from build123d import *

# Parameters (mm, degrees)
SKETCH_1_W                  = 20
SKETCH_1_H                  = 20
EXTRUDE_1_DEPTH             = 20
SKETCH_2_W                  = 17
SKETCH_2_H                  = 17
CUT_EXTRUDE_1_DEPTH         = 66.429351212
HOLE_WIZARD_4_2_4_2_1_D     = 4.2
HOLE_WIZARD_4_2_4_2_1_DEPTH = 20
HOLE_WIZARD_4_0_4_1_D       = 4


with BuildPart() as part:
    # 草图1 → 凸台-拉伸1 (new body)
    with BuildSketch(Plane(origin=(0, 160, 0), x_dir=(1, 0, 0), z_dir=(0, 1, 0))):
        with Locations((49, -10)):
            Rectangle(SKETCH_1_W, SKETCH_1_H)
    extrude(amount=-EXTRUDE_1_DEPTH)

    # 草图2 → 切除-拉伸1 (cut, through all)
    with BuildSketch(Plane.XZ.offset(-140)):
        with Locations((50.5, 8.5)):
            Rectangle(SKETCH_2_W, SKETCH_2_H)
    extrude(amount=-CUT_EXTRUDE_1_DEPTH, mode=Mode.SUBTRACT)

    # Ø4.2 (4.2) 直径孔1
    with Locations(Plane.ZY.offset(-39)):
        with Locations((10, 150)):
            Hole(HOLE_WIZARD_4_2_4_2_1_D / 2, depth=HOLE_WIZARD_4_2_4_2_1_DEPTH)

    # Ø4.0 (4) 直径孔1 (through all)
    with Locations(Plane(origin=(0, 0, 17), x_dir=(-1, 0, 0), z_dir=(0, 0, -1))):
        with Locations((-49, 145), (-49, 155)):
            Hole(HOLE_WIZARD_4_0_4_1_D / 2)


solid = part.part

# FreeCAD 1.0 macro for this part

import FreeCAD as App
import Part
import Sketcher
from FreeCAD import Vector

doc = App.newDocument("Part")
body = doc.addObject("PartDesign::Body", "Body")

# Sketch on XZ plane
sketch1 = body.newObject("Sketcher::SketchObject", "Sketch")
sketch1.AttachmentSupport = (doc.getObject("XZ_Plane"), [""])
sketch1.MapMode = "FlatFace"
sketch1.AttachmentOffset = App.Placement(Vector(0, 0, -160), App.Rotation())
sketch1.addGeometry([
    Part.LineSegment(Vector(39, 0, 0), Vector(39, 20, 0)),
    Part.LineSegment(Vector(39, 20, 0), Vector(59, 20, 0)),
    Part.LineSegment(Vector(59, 20, 0), Vector(59, 0, 0)),
    Part.LineSegment(Vector(59, 0, 0), Vector(39, 0, 0)),
], False)
sketch1.addConstraint([
    Sketcher.Constraint("Coincident", 0, 2, 1, 1),
    Sketcher.Constraint("Coincident", 1, 2, 2, 1),
    Sketcher.Constraint("Coincident", 2, 2, 3, 1),
    Sketcher.Constraint("Coincident", 3, 2, 0, 1),
    Sketcher.Constraint("Vertical", 0),
    Sketcher.Constraint("Horizontal", 1),
    Sketcher.Constraint("Vertical", 2),
    Sketcher.Constraint("Horizontal", 3),
    Sketcher.Constraint("PointOnObject", 2, 2, -1),
    Sketcher.Constraint("Equal", 3, 0),
    Sketcher.Constraint("DistanceX", 1, 1, 1, 2, 20.0),
    Sketcher.Constraint("DistanceX", -1, 1, 0, 2, 39.0),
])
pad1 = body.newObject("PartDesign::Pad", "Pad")
pad1.Profile = sketch1
pad1.Length = 20

# Sketch on XZ plane
sketch2 = body.newObject("Sketcher::SketchObject", "Sketch001")
sketch2.AttachmentSupport = (doc.getObject("XZ_Plane"), [""])
sketch2.MapMode = "FlatFace"
sketch2.AttachmentOffset = App.Placement(Vector(0, 0, -140), App.Rotation())
sketch2.addGeometry([
    Part.LineSegment(Vector(42, 17, 0), Vector(42, 0, 0)),
    Part.LineSegment(Vector(42, 0, 0), Vector(59, 0, 0)),
    Part.LineSegment(Vector(59, 0, 0), Vector(59, 17, 0)),
    Part.LineSegment(Vector(59, 17, 0), Vector(42, 17, 0)),
], False)
sketch2.addConstraint([
    Sketcher.Constraint("Coincident", 0, 2, 1, 1),
    Sketcher.Constraint("Coincident", 1, 2, 2, 1),
    Sketcher.Constraint("Coincident", 2, 2, 3, 1),
    Sketcher.Constraint("Coincident", 3, 2, 0, 1),
    Sketcher.Constraint("Vertical", 0),
    Sketcher.Constraint("Horizontal", 1),
    Sketcher.Constraint("Vertical", 2),
    Sketcher.Constraint("Horizontal", 3),
    Sketcher.Constraint("PointOnObject", 0, 2, -1),
    Sketcher.Constraint("Equal", 3, 0),
    Sketcher.Constraint("DistanceX", 1, 1, 1, 2, 17.0),
    Sketcher.Constraint("DistanceX", -1, 1, 0, 2, 42.0),
])
pocket1 = body.newObject("PartDesign::Pocket", "Pocket")
pocket1.Profile = sketch2
pocket1.Type = "ThroughAll"

# Sketch on YZ plane
sketch3 = body.newObject("Sketcher::SketchObject", "Sketch002")
sketch3.AttachmentSupport = (doc.getObject("YZ_Plane"), [""])
sketch3.MapMode = "FlatFace"
sketch3.AttachmentOffset = App.Placement(Vector(0, 0, 39), App.Rotation())
sketch3.addGeometry(Part.Circle(Vector(150, 10, 0), Vector(0, 0, 1), 2.1), False)
sketch3.addConstraint([
    Sketcher.Constraint("Diameter", 0, 4.2),
    Sketcher.Constraint("DistanceX", -1, 1, 0, 3, 150.0),
    Sketcher.Constraint("DistanceY", -1, 1, 0, 3, 10.0),
])
doc.recompute()
hole = body.newObject("PartDesign::Hole", "Hole")
hole.Profile = sketch3
hole.ThreadType = "None"
hole.Diameter = 4.2
hole.DepthType = "Dimension"
hole.Depth = 20
hole.DrillPoint = "Flat"
hole.Reversed = True

# Sketch on XY plane
sketch4 = body.newObject("Sketcher::SketchObject", "Sketch003")
sketch4.AttachmentSupport = (doc.getObject("XY_Plane"), [""])
sketch4.MapMode = "FlatFace"
sketch4.AttachmentOffset = App.Placement(Vector(0, 0, 17), App.Rotation())
sketch4.addGeometry([
    Part.Circle(Vector(49, 145, 0), Vector(0, 0, 1), 2),
    Part.Circle(Vector(49, 155, 0), Vector(0, 0, 1), 2),
], False)
sketch4.addConstraint([
    Sketcher.Constraint("Equal", 0, 1),
    Sketcher.Constraint("Vertical", 0, 3, 1, 3),
    Sketcher.Constraint("Diameter", 0, 4.0),
    Sketcher.Constraint("DistanceX", -1, 1, 0, 3, 49.0),
    Sketcher.Constraint("DistanceY", -1, 1, 0, 3, 145.0),
    Sketcher.Constraint("DistanceY", -1, 1, 1, 3, 155.0),
])
doc.recompute()
hole2 = body.newObject("PartDesign::Hole", "Hole001")
hole2.Profile = sketch4
hole2.ThreadType = "None"
hole2.Diameter = 4
hole2.DepthType = "ThroughAll"
hole2.Reversed = True

doc.recompute()
